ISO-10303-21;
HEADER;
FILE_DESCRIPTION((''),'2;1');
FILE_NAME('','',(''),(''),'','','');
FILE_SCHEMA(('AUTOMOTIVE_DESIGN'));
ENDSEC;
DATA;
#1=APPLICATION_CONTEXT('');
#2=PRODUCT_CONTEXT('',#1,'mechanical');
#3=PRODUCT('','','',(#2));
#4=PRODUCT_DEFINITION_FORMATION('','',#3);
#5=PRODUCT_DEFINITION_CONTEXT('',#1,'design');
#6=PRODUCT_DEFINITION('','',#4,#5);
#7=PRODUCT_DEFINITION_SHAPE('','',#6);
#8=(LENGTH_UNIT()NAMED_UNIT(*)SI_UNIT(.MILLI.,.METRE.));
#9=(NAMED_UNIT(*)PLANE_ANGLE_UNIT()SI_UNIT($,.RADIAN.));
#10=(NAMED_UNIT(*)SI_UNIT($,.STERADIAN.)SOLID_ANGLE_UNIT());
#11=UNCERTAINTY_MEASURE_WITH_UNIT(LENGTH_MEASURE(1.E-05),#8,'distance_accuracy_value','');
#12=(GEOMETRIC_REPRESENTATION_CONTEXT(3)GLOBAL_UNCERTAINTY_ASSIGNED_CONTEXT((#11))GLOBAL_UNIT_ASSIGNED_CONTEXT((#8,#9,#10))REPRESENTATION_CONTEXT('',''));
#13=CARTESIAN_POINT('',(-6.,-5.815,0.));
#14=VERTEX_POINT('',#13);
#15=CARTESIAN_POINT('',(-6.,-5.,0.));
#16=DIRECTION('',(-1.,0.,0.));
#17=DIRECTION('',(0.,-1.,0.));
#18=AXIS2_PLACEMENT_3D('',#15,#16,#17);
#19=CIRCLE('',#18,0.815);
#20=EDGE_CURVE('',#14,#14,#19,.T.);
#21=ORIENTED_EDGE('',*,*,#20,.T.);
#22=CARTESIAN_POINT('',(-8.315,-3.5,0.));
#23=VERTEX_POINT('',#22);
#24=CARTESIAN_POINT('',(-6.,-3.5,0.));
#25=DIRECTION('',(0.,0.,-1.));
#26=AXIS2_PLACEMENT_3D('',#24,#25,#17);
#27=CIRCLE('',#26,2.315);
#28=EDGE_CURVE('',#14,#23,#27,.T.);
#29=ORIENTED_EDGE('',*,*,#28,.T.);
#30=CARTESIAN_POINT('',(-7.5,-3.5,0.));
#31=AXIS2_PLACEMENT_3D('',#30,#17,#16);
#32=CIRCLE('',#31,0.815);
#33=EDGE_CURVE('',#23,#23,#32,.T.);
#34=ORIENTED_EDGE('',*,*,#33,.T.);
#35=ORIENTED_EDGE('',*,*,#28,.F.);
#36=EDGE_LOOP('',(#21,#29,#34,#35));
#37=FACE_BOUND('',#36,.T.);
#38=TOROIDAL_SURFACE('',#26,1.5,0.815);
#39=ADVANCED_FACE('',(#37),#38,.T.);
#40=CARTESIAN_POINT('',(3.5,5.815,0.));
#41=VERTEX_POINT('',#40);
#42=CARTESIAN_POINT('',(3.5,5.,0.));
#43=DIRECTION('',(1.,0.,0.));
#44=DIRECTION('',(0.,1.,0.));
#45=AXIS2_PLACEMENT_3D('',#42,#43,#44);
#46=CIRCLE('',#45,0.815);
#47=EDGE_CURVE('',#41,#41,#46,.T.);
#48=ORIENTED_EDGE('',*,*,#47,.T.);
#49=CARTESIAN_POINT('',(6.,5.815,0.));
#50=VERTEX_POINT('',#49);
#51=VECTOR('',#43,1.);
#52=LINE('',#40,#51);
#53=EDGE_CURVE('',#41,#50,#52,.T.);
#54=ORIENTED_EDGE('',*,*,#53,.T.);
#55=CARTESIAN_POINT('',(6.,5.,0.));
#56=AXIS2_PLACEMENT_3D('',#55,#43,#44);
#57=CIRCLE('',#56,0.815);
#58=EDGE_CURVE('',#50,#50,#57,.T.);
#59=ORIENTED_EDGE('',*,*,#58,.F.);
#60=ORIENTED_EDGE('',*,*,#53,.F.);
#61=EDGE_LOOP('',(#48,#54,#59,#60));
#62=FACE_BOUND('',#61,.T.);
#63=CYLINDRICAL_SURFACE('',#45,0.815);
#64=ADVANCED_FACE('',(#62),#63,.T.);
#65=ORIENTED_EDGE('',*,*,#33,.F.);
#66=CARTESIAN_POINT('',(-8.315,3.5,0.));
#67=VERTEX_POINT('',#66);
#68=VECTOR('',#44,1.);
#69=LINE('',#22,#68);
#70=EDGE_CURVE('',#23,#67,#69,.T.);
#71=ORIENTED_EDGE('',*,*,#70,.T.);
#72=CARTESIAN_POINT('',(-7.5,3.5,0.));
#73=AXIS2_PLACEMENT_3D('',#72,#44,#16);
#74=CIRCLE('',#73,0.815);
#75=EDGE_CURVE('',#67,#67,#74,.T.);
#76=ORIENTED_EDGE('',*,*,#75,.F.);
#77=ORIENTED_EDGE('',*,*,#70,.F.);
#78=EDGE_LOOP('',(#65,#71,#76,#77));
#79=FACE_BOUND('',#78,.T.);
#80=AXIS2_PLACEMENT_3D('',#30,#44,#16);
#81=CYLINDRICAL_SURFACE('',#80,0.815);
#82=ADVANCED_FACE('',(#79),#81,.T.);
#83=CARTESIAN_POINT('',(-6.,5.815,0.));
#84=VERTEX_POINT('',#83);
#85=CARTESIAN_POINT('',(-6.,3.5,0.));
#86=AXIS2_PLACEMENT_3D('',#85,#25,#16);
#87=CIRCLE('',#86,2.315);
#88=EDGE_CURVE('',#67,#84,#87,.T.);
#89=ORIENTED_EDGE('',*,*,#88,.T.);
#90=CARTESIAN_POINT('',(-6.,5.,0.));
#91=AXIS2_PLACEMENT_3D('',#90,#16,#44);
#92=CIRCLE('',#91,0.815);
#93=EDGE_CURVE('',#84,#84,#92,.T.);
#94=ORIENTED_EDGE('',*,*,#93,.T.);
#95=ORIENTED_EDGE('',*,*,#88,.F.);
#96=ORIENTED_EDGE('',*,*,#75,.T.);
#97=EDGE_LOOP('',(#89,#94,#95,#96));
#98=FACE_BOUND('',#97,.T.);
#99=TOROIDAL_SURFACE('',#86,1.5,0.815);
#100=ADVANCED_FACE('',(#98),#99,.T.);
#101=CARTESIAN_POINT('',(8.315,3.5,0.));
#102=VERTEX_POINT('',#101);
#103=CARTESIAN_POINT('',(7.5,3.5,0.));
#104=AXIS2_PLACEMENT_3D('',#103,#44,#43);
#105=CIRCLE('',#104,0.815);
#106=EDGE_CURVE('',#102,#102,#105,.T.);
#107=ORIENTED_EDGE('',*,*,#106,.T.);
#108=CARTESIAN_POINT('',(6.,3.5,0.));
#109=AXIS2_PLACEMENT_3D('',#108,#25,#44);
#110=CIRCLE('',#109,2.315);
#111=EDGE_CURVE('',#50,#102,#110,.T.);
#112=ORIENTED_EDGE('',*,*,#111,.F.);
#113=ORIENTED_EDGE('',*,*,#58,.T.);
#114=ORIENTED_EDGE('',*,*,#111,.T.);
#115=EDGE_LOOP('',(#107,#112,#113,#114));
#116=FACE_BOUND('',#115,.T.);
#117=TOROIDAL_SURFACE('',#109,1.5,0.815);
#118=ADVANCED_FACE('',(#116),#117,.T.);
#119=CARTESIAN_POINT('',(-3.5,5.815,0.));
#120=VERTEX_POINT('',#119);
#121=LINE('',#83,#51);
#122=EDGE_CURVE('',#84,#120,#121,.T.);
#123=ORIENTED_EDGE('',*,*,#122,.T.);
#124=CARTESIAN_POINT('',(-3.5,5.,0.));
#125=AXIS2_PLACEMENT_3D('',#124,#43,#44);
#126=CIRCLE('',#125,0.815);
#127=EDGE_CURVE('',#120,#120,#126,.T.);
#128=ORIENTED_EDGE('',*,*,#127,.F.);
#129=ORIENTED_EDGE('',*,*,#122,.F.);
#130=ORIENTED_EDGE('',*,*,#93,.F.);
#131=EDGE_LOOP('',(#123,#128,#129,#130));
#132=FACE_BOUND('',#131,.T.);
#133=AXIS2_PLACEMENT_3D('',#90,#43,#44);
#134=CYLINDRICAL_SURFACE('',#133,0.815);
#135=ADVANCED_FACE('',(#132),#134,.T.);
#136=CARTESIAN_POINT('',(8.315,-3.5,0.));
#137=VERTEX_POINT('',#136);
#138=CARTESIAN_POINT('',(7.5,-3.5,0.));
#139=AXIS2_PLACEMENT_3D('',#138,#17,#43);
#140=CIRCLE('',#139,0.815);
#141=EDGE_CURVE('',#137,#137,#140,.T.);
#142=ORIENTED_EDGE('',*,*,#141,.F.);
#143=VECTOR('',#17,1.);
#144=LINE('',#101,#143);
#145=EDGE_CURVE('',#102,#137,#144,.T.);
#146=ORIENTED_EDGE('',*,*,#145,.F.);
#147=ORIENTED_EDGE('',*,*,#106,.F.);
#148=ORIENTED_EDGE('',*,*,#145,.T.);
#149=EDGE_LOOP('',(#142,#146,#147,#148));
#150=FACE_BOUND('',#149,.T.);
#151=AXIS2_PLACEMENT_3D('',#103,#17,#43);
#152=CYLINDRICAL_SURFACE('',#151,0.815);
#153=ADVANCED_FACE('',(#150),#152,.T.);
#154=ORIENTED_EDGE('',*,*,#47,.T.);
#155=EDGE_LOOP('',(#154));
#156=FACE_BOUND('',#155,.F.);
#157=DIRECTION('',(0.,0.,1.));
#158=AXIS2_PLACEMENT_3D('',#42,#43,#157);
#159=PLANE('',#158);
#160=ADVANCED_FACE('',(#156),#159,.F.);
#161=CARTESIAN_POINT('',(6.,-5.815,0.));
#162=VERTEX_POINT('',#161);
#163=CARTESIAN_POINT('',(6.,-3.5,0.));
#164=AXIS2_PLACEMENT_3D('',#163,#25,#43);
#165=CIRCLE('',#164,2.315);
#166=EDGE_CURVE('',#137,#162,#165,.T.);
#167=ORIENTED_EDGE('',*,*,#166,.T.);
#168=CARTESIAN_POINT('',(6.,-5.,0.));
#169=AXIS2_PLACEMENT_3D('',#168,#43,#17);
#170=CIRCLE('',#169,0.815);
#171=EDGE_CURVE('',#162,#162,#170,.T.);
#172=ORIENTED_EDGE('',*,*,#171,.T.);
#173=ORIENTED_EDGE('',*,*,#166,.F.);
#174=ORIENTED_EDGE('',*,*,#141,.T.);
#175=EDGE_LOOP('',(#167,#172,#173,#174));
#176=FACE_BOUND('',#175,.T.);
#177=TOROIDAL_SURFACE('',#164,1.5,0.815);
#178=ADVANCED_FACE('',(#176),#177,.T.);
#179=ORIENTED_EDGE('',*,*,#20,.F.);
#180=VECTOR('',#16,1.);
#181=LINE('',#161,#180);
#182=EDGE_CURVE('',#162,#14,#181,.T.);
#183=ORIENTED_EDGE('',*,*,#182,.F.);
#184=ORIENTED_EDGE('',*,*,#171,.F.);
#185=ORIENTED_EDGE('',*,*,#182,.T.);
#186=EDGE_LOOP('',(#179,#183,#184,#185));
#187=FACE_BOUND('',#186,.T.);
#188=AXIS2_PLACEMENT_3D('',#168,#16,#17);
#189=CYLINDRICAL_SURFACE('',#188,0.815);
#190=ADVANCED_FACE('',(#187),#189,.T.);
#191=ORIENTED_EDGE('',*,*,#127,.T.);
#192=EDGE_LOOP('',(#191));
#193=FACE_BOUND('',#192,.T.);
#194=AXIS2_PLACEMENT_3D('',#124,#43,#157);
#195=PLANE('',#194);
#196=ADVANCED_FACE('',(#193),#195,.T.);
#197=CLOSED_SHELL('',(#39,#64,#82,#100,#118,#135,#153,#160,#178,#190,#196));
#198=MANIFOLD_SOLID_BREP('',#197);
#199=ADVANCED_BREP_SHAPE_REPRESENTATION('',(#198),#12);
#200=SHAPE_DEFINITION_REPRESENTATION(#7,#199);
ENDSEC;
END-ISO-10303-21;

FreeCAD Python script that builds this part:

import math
import FreeCAD as App
import Part
import Sketcher
from FreeCAD import Vector
Q = App.Units.Quantity

doc = App.newDocument("Part")
body = doc.addObject("PartDesign::Body", "Body")

# Sketch on YZ plane
sketch1 = body.newObject("Sketcher::SketchObject", "Sketch")
sketch1.AttachmentSupport = (doc.getObject("YZ_Plane"), [""])
sketch1.MapMode = "FlatFace"
sketch1.AttachmentOffset = App.Placement(Vector(0, 0, 3.5), App.Rotation())
sketch1.addGeometry(Part.Circle(Vector(5, 0, 0), Vector(0, 0, 1), 0.815), False)
sketch1.addConstraint(Sketcher.Constraint("PointOnObject", 0, 3, -1))
sketch1.addConstraint(Sketcher.Constraint("Diameter", 0, Q("1.63 mm")))
sketch1.addConstraint(Sketcher.Constraint("DistanceX", -1, 1, 0, 3, Q("5 mm")))

# Sketch on XY plane
sketch2 = body.newObject("Sketcher::SketchObject", "Sketch001")
sketch2.AttachmentSupport = (doc.getObject("XY_Plane"), [""])
sketch2.MapMode = "FlatFace"
sketch2.addGeometry(Part.LineSegment(Vector(3.5, 5, 0), Vector(6, 5, 0)), False)
sketch2.addGeometry(Part.ArcOfCircle(Part.Circle(Vector(6, 3.5, 0), Vector(0, 0, 1), 1.5), math.radians(0), math.radians(90)), False)
sketch2.addGeometry(Part.LineSegment(Vector(7.5, 3.5, 0), Vector(7.5, -3.5, 0)), False)
sketch2.addGeometry(Part.ArcOfCircle(Part.Circle(Vector(6, -3.5, 0), Vector(0, 0, 1), 1.5), math.radians(-90), math.radians(0)), False)
sketch2.addGeometry(Part.LineSegment(Vector(6, -5, 0), Vector(-6, -5, 0)), False)
sketch2.addGeometry(Part.ArcOfCircle(Part.Circle(Vector(-6, -3.5, 0), Vector(0, 0, 1), 1.5), math.radians(180), math.radians(270)), False)
sketch2.addGeometry(Part.LineSegment(Vector(-7.5, -3.5, 0), Vector(-7.5, 3.5, 0)), False)
sketch2.addGeometry(Part.ArcOfCircle(Part.Circle(Vector(-6, 3.5, 0), Vector(0, 0, 1), 1.5), math.radians(90), math.radians(180)), False)
sketch2.addGeometry(Part.LineSegment(Vector(-6, 5, 0), Vector(-3.5, 5, 0)), False)
sketch2.addConstraint(Sketcher.Constraint("Tangent", 0, 2, 1, 2))
sketch2.addConstraint(Sketcher.Constraint("Tangent", 1, 1, 2, 1))
sketch2.addConstraint(Sketcher.Constraint("Tangent", 2, 2, 3, 2))
sketch2.addConstraint(Sketcher.Constraint("Tangent", 3, 1, 4, 1))
sketch2.addConstraint(Sketcher.Constraint("Tangent", 4, 2, 5, 2))
sketch2.addConstraint(Sketcher.Constraint("Tangent", 5, 1, 6, 1))
sketch2.addConstraint(Sketcher.Constraint("Tangent", 6, 2, 7, 2))
sketch2.addConstraint(Sketcher.Constraint("Tangent", 7, 1, 8, 1))
sketch2.addConstraint(Sketcher.Constraint("Horizontal", 0))
sketch2.addConstraint(Sketcher.Constraint("Vertical", 2))
sketch2.addConstraint(Sketcher.Constraint("Horizontal", 4))
sketch2.addConstraint(Sketcher.Constraint("Vertical", 6))
sketch2.addConstraint(Sketcher.Constraint("Horizontal", 8))
sketch2.addConstraint(Sketcher.Constraint("Equal", 1, 3))
sketch2.addConstraint(Sketcher.Constraint("Equal", 3, 5))
sketch2.addConstraint(Sketcher.Constraint("Equal", 5, 7))
sketch2.addConstraint(Sketcher.Constraint("Symmetric", 1, 3, 5, 3, -1, 1))
sketch2.addConstraint(Sketcher.Constraint("Symmetric", 0, 1, 8, 2, -2))
sketch2.addConstraint(Sketcher.Constraint("Radius", 1, Q("1.5 mm")))
sketch2.addConstraint(Sketcher.Constraint("DistanceX", 4, 2, 4, 1, Q("12 mm")))
sketch2.addConstraint(Sketcher.Constraint("DistanceY", 2, 2, 2, 1, Q("7 mm")))
sketch2.addConstraint(Sketcher.Constraint("DistanceX", 0, 1, 0, 2, Q("2.5 mm")))
doc.recompute()

additivepipe = body.newObject("PartDesign::AdditivePipe", "AdditivePipe")
additivepipe.Profile = sketch1
additivepipe.Spine = (sketch2, ["Edge1", "Edge2", "Edge3", "Edge4", "Edge5", "Edge6", "Edge7", "Edge8", "Edge9"])

doc.recompute()
